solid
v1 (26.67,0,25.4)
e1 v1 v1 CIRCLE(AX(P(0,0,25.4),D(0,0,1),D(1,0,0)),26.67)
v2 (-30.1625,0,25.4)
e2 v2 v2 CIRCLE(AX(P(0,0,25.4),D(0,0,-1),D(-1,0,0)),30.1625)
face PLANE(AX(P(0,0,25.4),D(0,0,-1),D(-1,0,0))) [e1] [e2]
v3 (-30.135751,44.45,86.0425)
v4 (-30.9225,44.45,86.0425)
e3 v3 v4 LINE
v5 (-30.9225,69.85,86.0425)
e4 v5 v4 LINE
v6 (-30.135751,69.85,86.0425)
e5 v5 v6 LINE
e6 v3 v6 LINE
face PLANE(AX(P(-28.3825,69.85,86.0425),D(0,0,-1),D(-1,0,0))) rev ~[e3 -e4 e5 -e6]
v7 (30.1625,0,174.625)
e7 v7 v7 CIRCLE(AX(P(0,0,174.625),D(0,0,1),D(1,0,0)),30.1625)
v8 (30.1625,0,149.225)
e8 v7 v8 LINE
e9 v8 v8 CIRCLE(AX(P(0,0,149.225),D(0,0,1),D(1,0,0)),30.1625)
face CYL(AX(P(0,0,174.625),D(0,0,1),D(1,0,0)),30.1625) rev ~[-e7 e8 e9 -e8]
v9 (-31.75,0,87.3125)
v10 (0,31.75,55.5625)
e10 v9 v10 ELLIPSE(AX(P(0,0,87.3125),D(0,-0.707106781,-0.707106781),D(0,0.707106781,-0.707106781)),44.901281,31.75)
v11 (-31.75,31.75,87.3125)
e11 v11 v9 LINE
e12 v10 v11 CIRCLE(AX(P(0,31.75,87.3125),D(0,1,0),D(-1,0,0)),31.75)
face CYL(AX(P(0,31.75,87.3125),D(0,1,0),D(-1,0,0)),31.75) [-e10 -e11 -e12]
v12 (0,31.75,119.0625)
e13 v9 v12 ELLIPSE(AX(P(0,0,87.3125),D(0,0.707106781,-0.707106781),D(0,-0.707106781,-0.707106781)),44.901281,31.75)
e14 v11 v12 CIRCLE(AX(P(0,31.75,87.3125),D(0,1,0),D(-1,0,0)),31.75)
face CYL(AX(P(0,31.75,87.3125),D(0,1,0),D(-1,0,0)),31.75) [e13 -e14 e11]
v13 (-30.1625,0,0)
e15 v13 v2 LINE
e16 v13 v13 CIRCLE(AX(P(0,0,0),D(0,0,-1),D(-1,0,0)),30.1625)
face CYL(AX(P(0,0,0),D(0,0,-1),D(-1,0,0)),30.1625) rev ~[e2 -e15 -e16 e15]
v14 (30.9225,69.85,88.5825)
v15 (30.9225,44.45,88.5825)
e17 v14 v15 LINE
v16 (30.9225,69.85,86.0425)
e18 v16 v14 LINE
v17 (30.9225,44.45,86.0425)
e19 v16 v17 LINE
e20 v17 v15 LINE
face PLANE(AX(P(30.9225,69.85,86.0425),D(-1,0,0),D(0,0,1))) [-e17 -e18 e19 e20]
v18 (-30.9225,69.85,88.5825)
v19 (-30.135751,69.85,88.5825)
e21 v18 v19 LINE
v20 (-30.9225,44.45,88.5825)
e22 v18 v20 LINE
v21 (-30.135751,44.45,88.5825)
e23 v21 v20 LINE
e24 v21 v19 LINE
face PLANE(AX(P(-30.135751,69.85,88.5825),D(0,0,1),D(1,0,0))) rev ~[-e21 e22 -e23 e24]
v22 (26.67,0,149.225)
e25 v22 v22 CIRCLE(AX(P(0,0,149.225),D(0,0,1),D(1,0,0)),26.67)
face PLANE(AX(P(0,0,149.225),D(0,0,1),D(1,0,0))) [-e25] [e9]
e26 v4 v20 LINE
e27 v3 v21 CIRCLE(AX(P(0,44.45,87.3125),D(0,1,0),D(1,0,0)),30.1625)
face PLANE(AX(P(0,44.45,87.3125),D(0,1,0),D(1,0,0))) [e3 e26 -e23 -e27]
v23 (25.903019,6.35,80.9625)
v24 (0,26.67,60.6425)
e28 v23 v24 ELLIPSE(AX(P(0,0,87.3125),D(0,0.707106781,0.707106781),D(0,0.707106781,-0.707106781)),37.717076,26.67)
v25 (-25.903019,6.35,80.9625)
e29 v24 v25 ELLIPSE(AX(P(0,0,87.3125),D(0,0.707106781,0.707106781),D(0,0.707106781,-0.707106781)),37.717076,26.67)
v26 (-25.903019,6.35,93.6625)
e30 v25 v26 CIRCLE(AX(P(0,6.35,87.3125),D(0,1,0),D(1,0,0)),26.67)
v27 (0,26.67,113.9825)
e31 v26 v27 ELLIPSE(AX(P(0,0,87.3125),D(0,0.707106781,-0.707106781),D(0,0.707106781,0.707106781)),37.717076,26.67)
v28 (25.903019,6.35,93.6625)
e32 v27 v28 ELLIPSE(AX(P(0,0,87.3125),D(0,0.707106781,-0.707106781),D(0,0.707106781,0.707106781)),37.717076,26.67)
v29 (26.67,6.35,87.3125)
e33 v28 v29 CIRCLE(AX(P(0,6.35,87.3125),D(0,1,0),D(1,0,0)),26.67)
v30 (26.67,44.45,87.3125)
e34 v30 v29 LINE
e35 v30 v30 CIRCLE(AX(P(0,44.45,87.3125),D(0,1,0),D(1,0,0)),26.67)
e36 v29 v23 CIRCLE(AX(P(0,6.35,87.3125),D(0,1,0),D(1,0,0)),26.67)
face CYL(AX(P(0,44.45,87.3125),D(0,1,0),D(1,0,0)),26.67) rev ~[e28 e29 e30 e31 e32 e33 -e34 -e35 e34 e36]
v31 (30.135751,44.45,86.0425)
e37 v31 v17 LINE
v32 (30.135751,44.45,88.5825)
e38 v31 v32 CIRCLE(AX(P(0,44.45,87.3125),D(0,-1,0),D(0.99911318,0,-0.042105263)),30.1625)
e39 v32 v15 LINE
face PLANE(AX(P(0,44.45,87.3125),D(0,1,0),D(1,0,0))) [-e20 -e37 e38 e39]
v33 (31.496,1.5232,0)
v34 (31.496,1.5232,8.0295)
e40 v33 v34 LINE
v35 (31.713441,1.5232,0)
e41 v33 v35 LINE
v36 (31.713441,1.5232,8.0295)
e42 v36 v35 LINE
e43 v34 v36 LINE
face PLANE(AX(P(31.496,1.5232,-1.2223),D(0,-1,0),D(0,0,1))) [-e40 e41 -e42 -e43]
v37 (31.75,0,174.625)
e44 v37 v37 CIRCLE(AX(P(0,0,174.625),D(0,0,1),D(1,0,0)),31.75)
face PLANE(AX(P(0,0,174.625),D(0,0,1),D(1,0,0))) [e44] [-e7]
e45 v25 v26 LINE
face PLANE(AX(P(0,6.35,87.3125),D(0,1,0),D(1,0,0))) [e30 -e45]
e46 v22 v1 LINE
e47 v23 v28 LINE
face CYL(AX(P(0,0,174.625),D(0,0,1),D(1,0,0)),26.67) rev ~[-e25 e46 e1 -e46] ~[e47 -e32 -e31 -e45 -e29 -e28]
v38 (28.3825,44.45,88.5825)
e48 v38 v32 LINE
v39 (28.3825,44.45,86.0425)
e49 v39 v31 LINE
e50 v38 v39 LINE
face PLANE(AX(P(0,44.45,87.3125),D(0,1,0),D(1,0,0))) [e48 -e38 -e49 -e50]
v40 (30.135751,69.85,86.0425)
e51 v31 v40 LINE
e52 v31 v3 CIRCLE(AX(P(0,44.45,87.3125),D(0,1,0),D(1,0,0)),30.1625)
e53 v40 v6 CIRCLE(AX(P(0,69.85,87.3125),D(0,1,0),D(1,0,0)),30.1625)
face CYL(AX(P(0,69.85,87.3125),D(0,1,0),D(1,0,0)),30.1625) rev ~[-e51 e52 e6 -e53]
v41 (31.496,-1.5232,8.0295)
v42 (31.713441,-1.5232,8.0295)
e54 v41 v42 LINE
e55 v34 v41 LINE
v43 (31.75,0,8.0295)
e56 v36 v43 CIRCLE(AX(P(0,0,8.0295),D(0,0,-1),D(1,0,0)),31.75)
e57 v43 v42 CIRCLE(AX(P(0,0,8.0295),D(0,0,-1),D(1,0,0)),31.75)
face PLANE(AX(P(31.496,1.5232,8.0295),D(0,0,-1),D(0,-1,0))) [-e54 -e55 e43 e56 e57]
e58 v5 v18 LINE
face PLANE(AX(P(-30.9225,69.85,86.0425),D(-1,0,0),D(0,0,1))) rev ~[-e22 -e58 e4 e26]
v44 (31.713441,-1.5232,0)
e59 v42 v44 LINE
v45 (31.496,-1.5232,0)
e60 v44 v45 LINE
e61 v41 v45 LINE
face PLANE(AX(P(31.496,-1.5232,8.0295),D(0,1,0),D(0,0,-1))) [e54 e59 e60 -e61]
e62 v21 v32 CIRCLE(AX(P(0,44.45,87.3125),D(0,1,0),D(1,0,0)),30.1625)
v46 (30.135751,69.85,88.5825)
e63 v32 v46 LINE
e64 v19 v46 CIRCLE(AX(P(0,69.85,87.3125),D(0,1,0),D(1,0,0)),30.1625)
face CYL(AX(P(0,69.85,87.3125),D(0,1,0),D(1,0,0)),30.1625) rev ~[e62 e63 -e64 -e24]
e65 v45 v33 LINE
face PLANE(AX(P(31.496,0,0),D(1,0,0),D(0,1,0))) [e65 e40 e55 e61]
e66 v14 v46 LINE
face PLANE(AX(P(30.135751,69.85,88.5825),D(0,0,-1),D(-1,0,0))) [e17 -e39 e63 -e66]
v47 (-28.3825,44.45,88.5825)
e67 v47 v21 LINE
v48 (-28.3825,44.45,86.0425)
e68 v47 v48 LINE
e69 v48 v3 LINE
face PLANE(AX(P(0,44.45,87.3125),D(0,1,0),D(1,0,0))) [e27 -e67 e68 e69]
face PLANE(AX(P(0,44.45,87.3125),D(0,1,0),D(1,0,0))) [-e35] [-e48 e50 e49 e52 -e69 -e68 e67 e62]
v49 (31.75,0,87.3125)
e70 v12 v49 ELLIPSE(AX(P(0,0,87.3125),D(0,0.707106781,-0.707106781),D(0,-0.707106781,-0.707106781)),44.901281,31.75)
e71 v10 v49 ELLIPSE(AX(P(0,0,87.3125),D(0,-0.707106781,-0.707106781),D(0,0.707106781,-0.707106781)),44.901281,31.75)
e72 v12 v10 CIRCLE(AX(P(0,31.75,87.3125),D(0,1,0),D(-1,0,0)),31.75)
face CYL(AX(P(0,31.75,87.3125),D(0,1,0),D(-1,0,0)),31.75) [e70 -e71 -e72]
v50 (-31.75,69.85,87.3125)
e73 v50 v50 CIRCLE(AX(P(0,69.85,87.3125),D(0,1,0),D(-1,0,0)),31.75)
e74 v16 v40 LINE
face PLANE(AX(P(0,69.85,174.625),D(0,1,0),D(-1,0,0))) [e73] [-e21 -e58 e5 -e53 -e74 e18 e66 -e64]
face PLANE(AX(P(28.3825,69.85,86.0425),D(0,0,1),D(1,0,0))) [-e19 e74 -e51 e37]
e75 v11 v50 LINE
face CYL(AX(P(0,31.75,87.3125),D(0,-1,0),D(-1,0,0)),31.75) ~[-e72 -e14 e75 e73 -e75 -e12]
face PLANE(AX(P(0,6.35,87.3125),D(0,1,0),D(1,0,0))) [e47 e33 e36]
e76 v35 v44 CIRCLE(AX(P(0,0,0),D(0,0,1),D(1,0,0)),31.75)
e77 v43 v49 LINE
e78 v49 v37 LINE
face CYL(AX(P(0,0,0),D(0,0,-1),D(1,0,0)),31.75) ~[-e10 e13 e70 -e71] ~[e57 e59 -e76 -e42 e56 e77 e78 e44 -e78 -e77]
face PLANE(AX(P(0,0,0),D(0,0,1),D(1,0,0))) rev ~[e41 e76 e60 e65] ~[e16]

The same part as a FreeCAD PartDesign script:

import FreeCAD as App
import Part
import Sketcher

V = App.Vector
Q = App.Units.Quantity

doc = App.newDocument("Part")
params = doc.addObject("Spreadsheet::Sheet", "Params")
for row, (alias, value) in enumerate([
    ("sketch1_diameter", "2.5 in"),
    ("pad1_length", "6.875 in"),
    ("sketch2_diameter", "2.5 in"),
    ("pad2_length", "1.5 in"),
    ("pad2_length2", "1.25 in"),
    ("sketch3_diameter", "2.375 in"),
    ("pocket1_length", "1 in"),
    ("sketch4_diameter", "2.1 in"),
    ("pocket2_length", "1.5 in"),
    ("sketch5_diameter", "2.1 in"),
    ("pocket3_length", "7 in"),
    ("sketch6_diameter", "2.375 in"),
    ("sketch6_diameter2", "2.1 in"),
    ("pocket4_length", "1 in"),
    ("sketch7_diameter", "2.375 in"),
    ("sketch7_diameter2", "2.1 in"),
    ("pocket5_length", "1 in"),
    ("sketch8_width", "0.1 in"),
    ("pocket6_length", "1 in"),
    ("pocket7_length", "1 in"),
], start=1):
    params.set(f"A{row}", alias)
    params.set(f"B{row}", "=" + value)
    params.setAlias(f"B{row}", alias)

body = doc.addObject("PartDesign::Body", "Body")

sketch1 = doc.addObject("Sketcher::SketchObject", "Sketch")
body.addObject(sketch1)
sketch1.AttachmentSupport = (doc.XY_Plane, [""])
sketch1.MapMode = "FlatFace"
sketch1.addGeometry(Part.Circle(V(0, 0, 0), V(0, 0, 1), 32), False)
sketch1.addConstraint([
    Sketcher.Constraint("Coincident", 0, 3, -1, 1),
    Sketcher.Constraint("Diameter", 0, Q("2.5 in")),
])
sketch1.setExpression("Constraints[1]", "Params.sketch1_diameter")
pad1 = doc.addObject("PartDesign::Pad", "Pad")
body.addObject(pad1)
pad1.Profile = sketch1
pad1.setExpression("Length", "Params.pad1_length")

sketch2 = doc.addObject("Sketcher::SketchObject", "Sketch001")
body.addObject(sketch2)
sketch2.AttachmentSupport = (doc.XZ_Plane, [""])
sketch2.MapMode = "FlatFace"
sketch2.AttachmentOffset = App.Placement(V(0, 0, -1.25 * 25.4), App.Rotation())
sketch2.addGeometry(Part.Circle(V(0, 87, 0), V(0, 0, 1), 32), False)
sketch2.addConstraint([
    Sketcher.Constraint("PointOnObject", 0, 3, -2),
    Sketcher.Constraint("Diameter", 0, Q("2.5 in")),
    Sketcher.Constraint("DistanceY", -1, 1, 0, 3, Q("3.4375 in")),
])
sketch2.setExpression("Constraints[1]", "Params.sketch2_diameter")
pad2 = doc.addObject("PartDesign::Pad", "Pad001")
body.addObject(pad2)
pad2.Profile = sketch2
pad2.Type = "TwoLengths"
pad2.setExpression("Length", "Params.pad2_length")
pad2.setExpression("Length2", "Params.pad2_length2")
pad2.Reversed = True

sketch3 = doc.addObject("Sketcher::SketchObject", "Sketch002")
body.addObject(sketch3)
sketch3.AttachmentSupport = (doc.XZ_Plane, [""])
sketch3.MapMode = "FlatFace"
sketch3.AttachmentOffset = App.Placement(V(0, 0, -2.75 * 25.4), App.Rotation())
sketch3.addGeometry(Part.Circle(V(0, 87, 0), V(0, 0, 1), 30), False)
sketch3.addConstraint([
    Sketcher.Constraint("PointOnObject", 0, 3, -2),
    Sketcher.Constraint("Diameter", 0, Q("2.375 in")),
    Sketcher.Constraint("DistanceY", -1, 1, 0, 3, Q("3.4375 in")),
])
sketch3.setExpression("Constraints[1]", "Params.sketch3_diameter")
pocket1 = doc.addObject("PartDesign::Pocket", "Pocket")
body.addObject(pocket1)
pocket1.Profile = sketch3
pocket1.setExpression("Length", "Params.pocket1_length")
pocket1.Reversed = True

sketch4 = doc.addObject("Sketcher::SketchObject", "Sketch003")
body.addObject(sketch4)
sketch4.AttachmentSupport = (doc.XZ_Plane, [""])
sketch4.MapMode = "FlatFace"
sketch4.AttachmentOffset = App.Placement(V(0, 0, -1.75 * 25.4), App.Rotation())
sketch4.addGeometry(Part.Circle(V(0, 87, 0), V(0, 0, 1), 27), False)
sketch4.addConstraint([
    Sketcher.Constraint("PointOnObject", 0, 3, -2),
    Sketcher.Constraint("Diameter", 0, Q("2.1 in")),
    Sketcher.Constraint("DistanceY", -1, 1, 0, 3, Q("3.4375 in")),
])
sketch4.setExpression("Constraints[1]", "Params.sketch4_diameter")
pocket2 = doc.addObject("PartDesign::Pocket", "Pocket001")
body.addObject(pocket2)
pocket2.Profile = sketch4
pocket2.setExpression("Length", "Params.pocket2_length")
pocket2.Reversed = True

sketch5 = doc.addObject("Sketcher::SketchObject", "Sketch004")
body.addObject(sketch5)
sketch5.AttachmentSupport = (doc.XY_Plane, [""])
sketch5.MapMode = "FlatFace"
sketch5.AttachmentOffset = App.Placement(V(0, 0, 6.875 * 25.4), App.Rotation())
sketch5.addGeometry(Part.Circle(V(0, 0, 0), V(0, 0, 1), 27), False)
sketch5.addConstraint([
    Sketcher.Constraint("Coincident", 0, 3, -1, 1),
    Sketcher.Constraint("Diameter", 0, Q("2.1 in")),
])
sketch5.setExpression("Constraints[1]", "Params.sketch5_diameter")
pocket3 = doc.addObject("PartDesign::Pocket", "Pocket002")
body.addObject(pocket3)
pocket3.Profile = sketch5
pocket3.setExpression("Length", "Params.pocket3_length")

sketch6 = doc.addObject("Sketcher::SketchObject", "Sketch005")
body.addObject(sketch6)
sketch6.AttachmentSupport = (doc.XY_Plane, [""])
sketch6.MapMode = "FlatFace"
sketch6.AttachmentOffset = App.Placement(V(0, 0, 6.875 * 25.4), App.Rotation())
sketch6.addGeometry([
    Part.Circle(V(0, 0, 0), V(0, 0, 1), 30),
    Part.Circle(V(0, 0, 0), V(0, 0, 1), 27),
], False)
sketch6.addConstraint([
    Sketcher.Constraint("Coincident", 0, 3, -1, 1),
    Sketcher.Constraint("Coincident", 1, 3, -1, 1),
    Sketcher.Constraint("Diameter", 0, Q("2.375 in")),
    Sketcher.Constraint("Diameter", 1, Q("2.1 in")),
])
sketch6.setExpression("Constraints[2]", "Params.sketch6_diameter")
sketch6.setExpression("Constraints[3]", "Params.sketch6_diameter2")
pocket4 = doc.addObject("PartDesign::Pocket", "Pocket003")
body.addObject(pocket4)
pocket4.Profile = sketch6
pocket4.setExpression("Length", "Params.pocket4_length")

sketch7 = doc.addObject("Sketcher::SketchObject", "Sketch006")
body.addObject(sketch7)
sketch7.AttachmentSupport = (doc.XY_Plane, [""])
sketch7.MapMode = "FlatFace"
sketch7.addGeometry([
    Part.Circle(V(0, 0, 0), V(0, 0, 1), 30),
    Part.Circle(V(0, 0, 0), V(0, 0, 1), 27),
], False)
sketch7.addConstraint([
    Sketcher.Constraint("Coincident", 0, 3, -1, 1),
    Sketcher.Constraint("Coincident", 1, 3, -1, 1),
    Sketcher.Constraint("Diameter", 0, Q("2.375 in")),
    Sketcher.Constraint("Diameter", 1, Q("2.1 in")),
])
sketch7.setExpression("Constraints[2]", "Params.sketch7_diameter")
sketch7.setExpression("Constraints[3]", "Params.sketch7_diameter2")
pocket5 = doc.addObject("PartDesign::Pocket", "Pocket004")
body.addObject(pocket5)
pocket5.Profile = sketch7
pocket5.setExpression("Length", "Params.pocket5_length")
pocket5.Reversed = True

sketch8 = doc.addObject("Sketcher::SketchObject", "Sketch007")
body.addObject(sketch8)
sketch8.AttachmentSupport = (doc.XZ_Plane, [""])
sketch8.MapMode = "FlatFace"
sketch8.AttachmentOffset = App.Placement(V(0, 0, -2.75 * 25.4), App.Rotation())
sketch8.addGeometry([
    Part.LineSegment(V(28.4, 88.6, 0), V(30.9, 88.6, 0)),
    Part.LineSegment(V(30.9, 88.6, 0), V(30.9, 86, 0)),
    Part.LineSegment(V(30.9, 86, 0), V(28.4, 86, 0)),
    Part.LineSegment(V(28.4, 86, 0), V(28.4, 88.6, 0)),
    Part.LineSegment(V(-28.4, 86, 0), V(-30.9, 86, 0)),
    Part.LineSegment(V(-30.9, 86, 0), V(-30.9, 88.6, 0)),
    Part.LineSegment(V(-30.9, 88.6, 0), V(-28.4, 88.6, 0)),
    Part.LineSegment(V(-28.4, 88.6, 0), V(-28.4, 86, 0)),
], False)
sketch8.addConstraint([
    Sketcher.Constraint("Coincident", 0, 2, 1, 1),
    Sketcher.Constraint("Coincident", 1, 2, 2, 1),
    Sketcher.Constraint("Coincident", 2, 2, 3, 1),
    Sketcher.Constraint("Coincident", 3, 2, 0, 1),
    Sketcher.Constraint("Coincident", 4, 2, 5, 1),
    Sketcher.Constraint("Coincident", 5, 2, 6, 1),
    Sketcher.Constraint("Coincident", 6, 2, 7, 1),
    Sketcher.Constraint("Coincident", 7, 2, 4, 1),
    Sketcher.Constraint("Horizontal", 0),
    Sketcher.Constraint("Vertical", 1),
    Sketcher.Constraint("Horizontal", 2),
    Sketcher.Constraint("Vertical", 3),
    Sketcher.Constraint("Horizontal", 4),
    Sketcher.Constraint("Vertical", 5),
    Sketcher.Constraint("Horizontal", 6),
    Sketcher.Constraint("Vertical", 7),
    Sketcher.Constraint("Symmetric", 1, 2, 4, 2, -2),
    Sketcher.Constraint("Symmetric", 3, 2, 6, 2, -2),
    Sketcher.Constraint("Equal", 6, 1),
    Sketcher.Constraint("DistanceX", 0, 1, 0, 2, Q("0.1 in")),
    Sketcher.Constraint("DistanceY", -1, 1, 0, 2, Q("3.4875 in")),
    Sketcher.Constraint("DistanceX", -1, 1, 0, 2, 30.9225),
])
sketch8.setExpression("Constraints[19]", "Params.sketch8_width")
pocket6 = doc.addObject("PartDesign::Pocket", "Pocket005")
body.addObject(pocket6)
pocket6.Profile = sketch8
pocket6.setExpression("Length", "Params.pocket6_length")
pocket6.Reversed = True

sketch9 = doc.addObject("Sketcher::SketchObject", "Sketch008")
body.addObject(sketch9)
sketch9.AttachmentSupport = (doc.YZ_Plane, [""])
sketch9.MapMode = "FlatFace"
sketch9.AttachmentOffset = App.Placement(V(0, 0, 1.24 * 25.4), App.Rotation())
sketch9.addGeometry([
    Part.LineSegment(V(-1.5, 8, 0), V(-1.5, -1.2, 0)),
    Part.LineSegment(V(-1.5, -1.2, 0), V(1.5, -1.2, 0)),
    Part.LineSegment(V(1.5, -1.2, 0), V(1.5, 8, 0)),
    Part.LineSegment(V(1.5, 8, 0), V(-1.5, 8, 0)),
], False)
sketch9.addConstraint([
    Sketcher.Constraint("Coincident", 0, 2, 1, 1),
    Sketcher.Constraint("Coincident", 1, 2, 2, 1),
    Sketcher.Constraint("Coincident", 2, 2, 3, 1),
    Sketcher.Constraint("Coincident", 3, 2, 0, 1),
    Sketcher.Constraint("Vertical", 0),
    Sketcher.Constraint("Horizontal", 1),
    Sketcher.Constraint("Vertical", 2),
    Sketcher.Constraint("Horizontal", 3),
    Sketcher.Constraint("DistanceX", 1, 1, 1, 2, 3.0464),
    Sketcher.Constraint("DistanceY", 0, 2, 0, 1, 9.2518),
    Sketcher.Constraint("DistanceX", 0, 2, -1, 1, 1.5232),
    Sketcher.Constraint("DistanceY", 0, 2, -1, 1, 1.2223),
])
pocket7 = doc.addObject("PartDesign::Pocket", "Pocket006")
body.addObject(pocket7)
pocket7.Profile = sketch9
pocket7.setExpression("Length", "Params.pocket7_length")
pocket7.Reversed = True

doc.recompute()
